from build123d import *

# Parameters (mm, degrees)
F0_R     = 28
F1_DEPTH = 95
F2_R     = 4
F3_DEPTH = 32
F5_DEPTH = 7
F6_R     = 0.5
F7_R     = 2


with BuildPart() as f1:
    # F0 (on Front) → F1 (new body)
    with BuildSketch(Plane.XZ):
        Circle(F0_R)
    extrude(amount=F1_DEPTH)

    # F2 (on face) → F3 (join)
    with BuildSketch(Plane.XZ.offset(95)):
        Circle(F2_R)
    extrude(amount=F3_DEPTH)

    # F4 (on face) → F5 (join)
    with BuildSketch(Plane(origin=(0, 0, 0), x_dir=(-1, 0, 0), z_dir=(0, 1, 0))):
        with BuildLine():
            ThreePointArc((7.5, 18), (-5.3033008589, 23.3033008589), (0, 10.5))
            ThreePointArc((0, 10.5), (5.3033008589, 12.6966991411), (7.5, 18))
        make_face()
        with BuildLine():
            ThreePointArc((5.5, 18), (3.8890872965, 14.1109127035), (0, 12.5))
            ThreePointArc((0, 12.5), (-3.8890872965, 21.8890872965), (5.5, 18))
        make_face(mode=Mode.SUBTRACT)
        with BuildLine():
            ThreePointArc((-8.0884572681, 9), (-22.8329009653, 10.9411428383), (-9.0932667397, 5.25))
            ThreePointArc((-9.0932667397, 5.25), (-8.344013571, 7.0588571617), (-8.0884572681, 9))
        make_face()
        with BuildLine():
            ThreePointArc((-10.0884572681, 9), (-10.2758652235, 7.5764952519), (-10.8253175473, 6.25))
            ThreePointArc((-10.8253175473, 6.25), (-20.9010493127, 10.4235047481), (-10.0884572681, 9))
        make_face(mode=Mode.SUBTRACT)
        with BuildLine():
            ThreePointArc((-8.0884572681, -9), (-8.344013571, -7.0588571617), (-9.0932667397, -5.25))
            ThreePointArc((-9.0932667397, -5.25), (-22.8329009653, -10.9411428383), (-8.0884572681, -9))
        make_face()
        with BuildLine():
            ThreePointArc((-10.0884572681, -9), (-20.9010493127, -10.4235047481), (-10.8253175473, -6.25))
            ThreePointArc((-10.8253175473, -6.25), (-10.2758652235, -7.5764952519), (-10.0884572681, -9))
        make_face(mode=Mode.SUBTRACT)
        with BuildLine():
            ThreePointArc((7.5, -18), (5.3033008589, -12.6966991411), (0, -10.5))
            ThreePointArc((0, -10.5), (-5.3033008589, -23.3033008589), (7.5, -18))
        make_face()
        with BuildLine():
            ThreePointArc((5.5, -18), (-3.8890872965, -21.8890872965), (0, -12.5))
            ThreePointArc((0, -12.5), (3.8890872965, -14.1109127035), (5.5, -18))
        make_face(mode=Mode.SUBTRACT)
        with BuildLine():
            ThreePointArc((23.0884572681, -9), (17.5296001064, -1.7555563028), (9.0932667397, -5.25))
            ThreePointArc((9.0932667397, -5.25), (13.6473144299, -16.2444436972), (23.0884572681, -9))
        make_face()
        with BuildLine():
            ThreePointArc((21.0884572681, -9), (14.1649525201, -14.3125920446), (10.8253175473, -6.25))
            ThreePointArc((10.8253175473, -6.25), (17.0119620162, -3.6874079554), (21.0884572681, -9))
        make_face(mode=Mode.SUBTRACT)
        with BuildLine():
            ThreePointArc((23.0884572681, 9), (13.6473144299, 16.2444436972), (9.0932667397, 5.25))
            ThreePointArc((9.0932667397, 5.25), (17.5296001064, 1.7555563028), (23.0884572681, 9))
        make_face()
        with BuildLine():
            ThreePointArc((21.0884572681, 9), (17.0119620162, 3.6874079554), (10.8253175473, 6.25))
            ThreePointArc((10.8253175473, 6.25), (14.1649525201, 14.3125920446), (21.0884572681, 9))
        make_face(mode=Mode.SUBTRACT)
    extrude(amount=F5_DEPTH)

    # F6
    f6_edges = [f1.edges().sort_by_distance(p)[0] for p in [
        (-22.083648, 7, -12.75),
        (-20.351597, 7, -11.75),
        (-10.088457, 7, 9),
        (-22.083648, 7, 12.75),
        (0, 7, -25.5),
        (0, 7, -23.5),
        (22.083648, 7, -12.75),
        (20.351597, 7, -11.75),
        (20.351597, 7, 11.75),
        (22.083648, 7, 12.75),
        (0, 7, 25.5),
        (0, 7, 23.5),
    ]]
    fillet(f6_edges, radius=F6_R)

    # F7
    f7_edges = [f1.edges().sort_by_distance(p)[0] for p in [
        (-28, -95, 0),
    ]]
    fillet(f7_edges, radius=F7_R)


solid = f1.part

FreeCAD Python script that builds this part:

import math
import FreeCAD as App
import Part
import Sketcher
from FreeCAD import Vector
Q = App.Units.Quantity


def edges_at(feature, points):
    """Names of the edges that pass closest to the given points."""
    edges = feature.Shape.Edges
    near = lambda p: min(range(len(edges)), key=lambda i: edges[i].distToShape(Part.Vertex(*p))[0])
    return sorted({f"Edge{near(p) + 1}" for p in points})

doc = App.newDocument("Part")
body = doc.addObject("PartDesign::Body", "Body")

sketch1 = body.newObject("Sketcher::SketchObject", "Sketch")
sketch1.AttachmentSupport = (doc.getObject("XZ_Plane"), [""])
sketch1.MapMode = "FlatFace"
sketch1.addGeometry(Part.Circle(Vector(0, 0, 0), Vector(0, 0, 1), 28), False)
sketch1.addConstraint([
    Sketcher.Constraint("Coincident", 0, 3, -1, 1),
    Sketcher.Constraint("Diameter", 0, Q("56 mm")),
])
pad1 = body.newObject("PartDesign::Pad", "Pad")
pad1.Profile = sketch1
pad1.Length = 95

sketch2 = body.newObject("Sketcher::SketchObject", "Sketch001")
sketch2.AttachmentSupport = (doc.getObject("XZ_Plane"), [""])
sketch2.MapMode = "FlatFace"
sketch2.AttachmentOffset = App.Placement(Vector(0, 0, 95), App.Rotation())
sketch2.addGeometry(Part.Circle(Vector(0, 0, 0), Vector(0, 0, 1), 4), False)
sketch2.addConstraint([
    Sketcher.Constraint("Coincident", 0, 3, -1, 1),
    Sketcher.Constraint("Diameter", 0, Q("8 mm")),
])
pad2 = body.newObject("PartDesign::Pad", "Pad001")
pad2.Profile = sketch2
pad2.Length = 32

sketch3 = body.newObject("Sketcher::SketchObject", "Sketch002")
sketch3.AttachmentSupport = (doc.getObject("XZ_Plane"), [""])
sketch3.MapMode = "FlatFace"
sketch3.addGeometry([
    Part.Circle(Vector(0, 18, 0), Vector(0, 0, 1), 7.5),
    Part.ArcOfCircle(Part.Circle(Vector(0, 18, 0), Vector(0, 0, 1), 5.5), math.radians(-90), math.radians(180)),
    Part.ArcOfCircle(Part.Circle(Vector(0, 18, 0), Vector(0, 0, 1), 5.5), math.radians(180), math.radians(270)),
    Part.ArcOfCircle(Part.Circle(Vector(15.6, 9, 0), Vector(0, 0, 1), 7.5), math.radians(-150), math.radians(180)),
    Part.ArcOfCircle(Part.Circle(Vector(15.6, 9, 0), Vector(0, 0, 1), 7.5), math.radians(180), math.radians(210)),
    Part.ArcOfCircle(Part.Circle(Vector(15.6, 9, 0), Vector(0, 0, 1), 5.5), math.radians(-150), math.radians(180)),
    Part.ArcOfCircle(Part.Circle(Vector(15.6, 9, 0), Vector(0, 0, 1), 5.5), math.radians(180), math.radians(210)),
    Part.ArcOfCircle(Part.Circle(Vector(15.6, -9, 0), Vector(0, 0, 1), 7.5), math.radians(150), math.radians(180)),
    Part.ArcOfCircle(Part.Circle(Vector(15.6, -9, 0), Vector(0, 0, 1), 7.5), math.radians(180), math.radians(510)),
    Part.ArcOfCircle(Part.Circle(Vector(15.6, -9, 0), Vector(0, 0, 1), 5.5), math.radians(150), math.radians(180)),
    Part.ArcOfCircle(Part.Circle(Vector(15.6, -9, 0), Vector(0, 0, 1), 5.5), math.radians(180), math.radians(510)),
    Part.Circle(Vector(0, -18, 0), Vector(0, 0, 1), 7.5),
    Part.ArcOfCircle(Part.Circle(Vector(0, -18, 0), Vector(0, 0, 1), 5.5), math.radians(90), math.radians(180)),
    Part.ArcOfCircle(Part.Circle(Vector(0, -18, 0), Vector(0, 0, 1), 5.5), math.radians(180), math.radians(450)),
    Part.ArcOfCircle(Part.Circle(Vector(-15.6, -9, 0), Vector(0, 0, 1), 7.5), math.radians(30), math.radians(180)),
    Part.ArcOfCircle(Part.Circle(Vector(-15.6, -9, 0), Vector(0, 0, 1), 7.5), math.radians(180), math.radians(390)),
    Part.ArcOfCircle(Part.Circle(Vector(-15.6, -9, 0), Vector(0, 0, 1), 5.5), math.radians(30), math.radians(180)),
    Part.ArcOfCircle(Part.Circle(Vector(-15.6, -9, 0), Vector(0, 0, 1), 5.5), math.radians(180), math.radians(390)),
    Part.ArcOfCircle(Part.Circle(Vector(-15.6, 9, 0), Vector(0, 0, 1), 7.5), math.radians(-30), math.radians(180)),
    Part.ArcOfCircle(Part.Circle(Vector(-15.6, 9, 0), Vector(0, 0, 1), 7.5), math.radians(180), math.radians(330)),
    Part.ArcOfCircle(Part.Circle(Vector(-15.6, 9, 0), Vector(0, 0, 1), 5.5), math.radians(-30), math.radians(180)),
    Part.ArcOfCircle(Part.Circle(Vector(-15.6, 9, 0), Vector(0, 0, 1), 5.5), math.radians(180), math.radians(330)),
], False)
sketch3.addConstraint([
    Sketcher.Constraint("Tangent", 1, 1, 2, 2),
    Sketcher.Constraint("Coincident", 2, 1, 1, 2),
    Sketcher.Constraint("Tangent", 3, 1, 4, 2),
    Sketcher.Constraint("Coincident", 4, 1, 3, 2),
    Sketcher.Constraint("Tangent", 5, 1, 6, 2),
    Sketcher.Constraint("Coincident", 6, 1, 5, 2),
    Sketcher.Constraint("Tangent", 7, 1, 8, 2),
    Sketcher.Constraint("Coincident", 8, 1, 7, 2),
    Sketcher.Constraint("Tangent", 9, 1, 10, 2),
    Sketcher.Constraint("Coincident", 10, 1, 9, 2),
    Sketcher.Constraint("Tangent", 12, 1, 13, 2),
    Sketcher.Constraint("Coincident", 13, 1, 12, 2),
    Sketcher.Constraint("Tangent", 14, 1, 15, 2),
    Sketcher.Constraint("Coincident", 15, 1, 14, 2),
    Sketcher.Constraint("Tangent", 16, 1, 17, 2),
    Sketcher.Constraint("Coincident", 17, 1, 16, 2),
    Sketcher.Constraint("Tangent", 18, 1, 19, 2),
    Sketcher.Constraint("Coincident", 19, 1, 18, 2),
    Sketcher.Constraint("Tangent", 20, 1, 21, 2),
    Sketcher.Constraint("Coincident", 21, 1, 20, 2),
    Sketcher.Constraint("Coincident", 1, 3, 0, 3),
    Sketcher.Constraint("Coincident", 5, 3, 3, 3),
    Sketcher.Constraint("Coincident", 9, 3, 7, 3),
    Sketcher.Constraint("Coincident", 12, 3, 11, 3),
    Sketcher.Constraint("Coincident", 16, 3, 14, 3),
    Sketcher.Constraint("Coincident", 20, 3, 18, 3),
    Sketcher.Constraint("Equal", 0, 3),
    Sketcher.Constraint("Equal", 2, 5),
    Sketcher.Constraint("Equal", 4, 7),
    Sketcher.Constraint("Equal", 6, 9),
    Sketcher.Constraint("Equal", 8, 11),
    Sketcher.Constraint("Equal", 10, 12),
    Sketcher.Constraint("Equal", 11, 14),
    Sketcher.Constraint("Equal", 13, 16),
    Sketcher.Constraint("Equal", 15, 18),
    Sketcher.Constraint("Equal", 17, 20),
    Sketcher.Constraint("Symmetric", 0, 3, 11, 3, -1, 1),
    Sketcher.Constraint("Symmetric", 3, 3, 14, 3, -1, 1),
    Sketcher.Constraint("Symmetric", 7, 3, 18, 3, -1, 1),
    Sketcher.Constraint("Symmetric", 7, 3, 14, 3, -2),
    Sketcher.Constraint("Symmetric", 2, 1, 13, 1, -1),
    Sketcher.Constraint("PointOnObject", 1, 1, -2),
    Sketcher.Constraint("PointOnObject", 12, 1, -2),
    Sketcher.Constraint("Horizontal", 1, 3, 2, 1),
    Sketcher.Constraint("Horizontal", 21, 3, 4, 1),
    Sketcher.Constraint("Horizontal", 4, 1, 6, 1),
    Sketcher.Constraint("Horizontal", 17, 3, 8, 1),
    Sketcher.Constraint("Horizontal", 8, 1, 10, 1),
    Sketcher.Constraint("Horizontal", 7, 1, 14, 1),
    Sketcher.Constraint("Horizontal", 10, 1, 15, 1),
    Sketcher.Constraint("Horizontal", 9, 1, 16, 1),
    Sketcher.Constraint("Horizontal", 15, 1, 17, 1),
    Sketcher.Constraint("Horizontal", 3, 1, 18, 1),
    Sketcher.Constraint("Horizontal", 6, 1, 19, 1),
    Sketcher.Constraint("Horizontal", 5, 1, 20, 1),
    Sketcher.Constraint("Horizontal", 19, 1, 21, 1),
    Sketcher.Constraint("Vertical", 3, 1, 7, 1),
    Sketcher.Constraint("Vertical", 5, 1, 9, 1),
    Sketcher.Constraint("Diameter", 0, Q("15 mm")),
    Sketcher.Constraint("Radius", 1, Q("5.5 mm")),
    Sketcher.Constraint("DistanceY", -1, 1, 0, 3, Q("18 mm")),
    Sketcher.Constraint("DistanceY", -1, 1, 3, 3, Q("9 mm")),
    Sketcher.Constraint("DistanceY", 3, 1, 5, 1, Q("1 mm")),
    Sketcher.Constraint("DistanceY", 7, 1, 3, 1, Q("10.5 mm")),
    Sketcher.Constraint("DistanceX", -1, 1, 3, 3, Q("15.588457 mm")),
])
pad3 = body.newObject("PartDesign::Pad", "Pad002")
pad3.Profile = sketch3
pad3.Length = 7
pad3.Reversed = True
doc.recompute()

fillet = body.newObject("PartDesign::Fillet", "Fillet")
fillet.Base = (pad3, edges_at(pad3, [
    (-13.647, 7, -16.244),
    (-14.165, 7, -14.313),
    (-14.165, 7, 14.313),
    (-13.647, 7, 16.244),
    (0, 7, -25.5),
    (3.889, 7, -21.889),
    (22.833, 7, -10.941),
    (20.901, 7, -10.424),
    (20.901, 7, 10.424),
    (22.833, 7, 10.941),
    (0, 7, 25.5),
    (3.889, 7, 21.889),
]))
fillet.Radius = 0.5
doc.recompute()

fillet2 = body.newObject("PartDesign::Fillet", "Fillet001")
fillet2.Base = (fillet, edges_at(fillet, [(-28, -95, 0)]))
fillet2.Radius = 2

doc.recompute()
